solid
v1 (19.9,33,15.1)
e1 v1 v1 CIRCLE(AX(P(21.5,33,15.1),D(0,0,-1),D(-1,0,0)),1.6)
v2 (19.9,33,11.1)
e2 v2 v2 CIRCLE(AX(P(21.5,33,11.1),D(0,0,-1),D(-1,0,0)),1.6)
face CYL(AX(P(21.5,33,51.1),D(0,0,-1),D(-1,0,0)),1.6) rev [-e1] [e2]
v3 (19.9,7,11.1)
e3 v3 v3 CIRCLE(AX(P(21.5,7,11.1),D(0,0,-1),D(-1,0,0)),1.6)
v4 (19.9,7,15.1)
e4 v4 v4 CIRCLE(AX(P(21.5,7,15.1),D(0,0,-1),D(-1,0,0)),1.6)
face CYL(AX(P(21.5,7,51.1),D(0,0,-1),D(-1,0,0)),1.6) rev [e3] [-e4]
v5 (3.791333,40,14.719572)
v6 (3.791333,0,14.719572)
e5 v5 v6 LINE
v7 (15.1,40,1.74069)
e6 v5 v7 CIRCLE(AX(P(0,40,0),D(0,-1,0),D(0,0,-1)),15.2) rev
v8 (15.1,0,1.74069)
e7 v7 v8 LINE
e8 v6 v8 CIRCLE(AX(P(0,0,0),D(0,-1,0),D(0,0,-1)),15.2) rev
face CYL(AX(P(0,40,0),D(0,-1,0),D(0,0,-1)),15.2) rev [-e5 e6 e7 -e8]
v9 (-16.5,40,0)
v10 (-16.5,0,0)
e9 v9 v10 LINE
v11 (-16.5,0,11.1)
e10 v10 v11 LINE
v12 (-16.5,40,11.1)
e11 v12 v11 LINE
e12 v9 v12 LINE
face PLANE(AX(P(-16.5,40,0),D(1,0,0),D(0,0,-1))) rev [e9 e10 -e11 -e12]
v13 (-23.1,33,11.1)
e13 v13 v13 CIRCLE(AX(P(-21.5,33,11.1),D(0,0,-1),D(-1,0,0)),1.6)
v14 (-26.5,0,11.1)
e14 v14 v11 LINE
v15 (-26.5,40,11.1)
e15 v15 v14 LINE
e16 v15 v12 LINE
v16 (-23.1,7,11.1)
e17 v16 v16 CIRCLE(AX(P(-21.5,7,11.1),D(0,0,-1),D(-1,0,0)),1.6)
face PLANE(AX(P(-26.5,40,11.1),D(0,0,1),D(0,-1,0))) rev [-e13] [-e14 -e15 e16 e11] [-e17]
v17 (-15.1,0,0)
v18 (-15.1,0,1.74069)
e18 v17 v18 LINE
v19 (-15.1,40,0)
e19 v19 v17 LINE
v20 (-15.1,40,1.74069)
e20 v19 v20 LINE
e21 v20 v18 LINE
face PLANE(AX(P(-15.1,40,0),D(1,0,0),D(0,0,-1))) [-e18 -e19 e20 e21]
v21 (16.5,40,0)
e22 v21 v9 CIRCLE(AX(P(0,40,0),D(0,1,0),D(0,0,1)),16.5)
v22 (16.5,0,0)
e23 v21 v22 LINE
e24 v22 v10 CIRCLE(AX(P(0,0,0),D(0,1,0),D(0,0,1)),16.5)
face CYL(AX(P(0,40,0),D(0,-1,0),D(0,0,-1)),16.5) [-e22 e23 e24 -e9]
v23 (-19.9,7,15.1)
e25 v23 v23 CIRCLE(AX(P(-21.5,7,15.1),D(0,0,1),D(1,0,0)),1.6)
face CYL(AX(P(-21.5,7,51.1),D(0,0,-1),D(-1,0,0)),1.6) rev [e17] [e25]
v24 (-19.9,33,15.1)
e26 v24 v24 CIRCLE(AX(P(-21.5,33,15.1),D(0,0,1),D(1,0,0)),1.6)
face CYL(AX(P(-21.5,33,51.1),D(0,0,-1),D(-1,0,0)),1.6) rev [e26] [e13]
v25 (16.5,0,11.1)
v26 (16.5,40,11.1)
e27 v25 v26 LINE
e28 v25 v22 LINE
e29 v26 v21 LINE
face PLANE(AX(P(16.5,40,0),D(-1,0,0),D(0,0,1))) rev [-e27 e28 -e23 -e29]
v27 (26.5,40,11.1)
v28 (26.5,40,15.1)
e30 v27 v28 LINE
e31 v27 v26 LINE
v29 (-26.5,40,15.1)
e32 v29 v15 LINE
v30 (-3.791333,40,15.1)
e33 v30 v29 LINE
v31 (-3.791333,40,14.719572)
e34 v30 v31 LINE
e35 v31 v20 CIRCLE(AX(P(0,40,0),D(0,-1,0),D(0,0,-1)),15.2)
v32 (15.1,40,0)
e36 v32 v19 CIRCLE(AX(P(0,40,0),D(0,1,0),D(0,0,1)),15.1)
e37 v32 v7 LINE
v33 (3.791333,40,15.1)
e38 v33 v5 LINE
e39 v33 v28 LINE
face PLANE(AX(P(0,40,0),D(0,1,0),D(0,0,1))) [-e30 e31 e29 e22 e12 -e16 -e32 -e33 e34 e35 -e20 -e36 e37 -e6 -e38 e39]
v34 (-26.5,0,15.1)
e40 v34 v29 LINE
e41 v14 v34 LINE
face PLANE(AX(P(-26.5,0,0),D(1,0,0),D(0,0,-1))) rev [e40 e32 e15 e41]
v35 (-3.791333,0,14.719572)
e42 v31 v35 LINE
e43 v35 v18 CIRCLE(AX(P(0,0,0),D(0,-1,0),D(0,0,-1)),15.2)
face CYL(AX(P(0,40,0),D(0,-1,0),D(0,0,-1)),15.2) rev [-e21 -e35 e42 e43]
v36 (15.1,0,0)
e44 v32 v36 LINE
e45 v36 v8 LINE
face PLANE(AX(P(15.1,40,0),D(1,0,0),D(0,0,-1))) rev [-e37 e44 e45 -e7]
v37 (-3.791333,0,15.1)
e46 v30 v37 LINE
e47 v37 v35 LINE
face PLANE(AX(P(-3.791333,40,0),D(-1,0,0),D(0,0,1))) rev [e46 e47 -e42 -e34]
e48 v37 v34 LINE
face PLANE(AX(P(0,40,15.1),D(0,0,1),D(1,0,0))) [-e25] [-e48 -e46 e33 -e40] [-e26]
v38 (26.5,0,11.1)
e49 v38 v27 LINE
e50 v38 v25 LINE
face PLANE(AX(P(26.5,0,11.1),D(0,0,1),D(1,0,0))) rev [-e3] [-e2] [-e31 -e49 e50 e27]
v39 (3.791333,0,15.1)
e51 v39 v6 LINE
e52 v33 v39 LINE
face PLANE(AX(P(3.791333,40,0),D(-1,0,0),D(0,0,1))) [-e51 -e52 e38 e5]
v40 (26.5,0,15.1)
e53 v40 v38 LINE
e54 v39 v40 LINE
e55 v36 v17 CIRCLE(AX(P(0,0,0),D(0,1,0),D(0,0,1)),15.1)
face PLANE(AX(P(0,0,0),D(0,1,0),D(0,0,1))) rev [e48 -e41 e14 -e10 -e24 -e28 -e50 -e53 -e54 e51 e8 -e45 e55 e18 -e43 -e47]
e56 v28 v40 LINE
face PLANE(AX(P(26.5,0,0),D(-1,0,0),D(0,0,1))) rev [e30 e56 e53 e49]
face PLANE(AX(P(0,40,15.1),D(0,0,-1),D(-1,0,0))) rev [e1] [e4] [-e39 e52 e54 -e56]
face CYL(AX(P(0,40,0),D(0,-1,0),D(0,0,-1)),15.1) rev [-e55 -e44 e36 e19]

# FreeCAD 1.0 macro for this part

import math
import FreeCAD as App
import Part
import Sketcher
from FreeCAD import Vector
Q = App.Units.Quantity

doc = App.newDocument("Part")
body = doc.addObject("PartDesign::Body", "Body")

# Sketch on XZ plane
sketch1 = body.newObject("Sketcher::SketchObject", "Sketch")
sketch1.AttachmentSupport = (doc.getObject("XZ_Plane"), [""])
sketch1.MapMode = "FlatFace"
sketch1.addGeometry([
    Part.ArcOfCircle(Part.Circle(Vector(0, 0, 0), Vector(0, 0, 1), 16.5), math.radians(180), math.radians(360)),  # 0
    Part.LineSegment(Vector(-16.5, 0, 0), Vector(-16.5, 15.1, 0)),  # 1
    Part.LineSegment(Vector(-16.5, 15.1, 0), Vector(-15.1, 15.1, 0)),  # 2
    Part.LineSegment(Vector(-15.1, 15.1, 0), Vector(-15.1, 0, 0)),  # 3
    Part.ArcOfCircle(Part.Circle(Vector(0, 0, 0), Vector(0, 0, 1), 15.1), math.radians(180), math.radians(360)),  # 4
    Part.LineSegment(Vector(15.1, 0, 0), Vector(15.1, 15.1, 0)),  # 5
    Part.LineSegment(Vector(15.1, 15.1, 0), Vector(16.5, 15.1, 0)),  # 6
    Part.LineSegment(Vector(16.5, 15.1, 0), Vector(16.5, 0, 0)),  # 7
], False)
sketch1.addConstraint([
    Sketcher.Constraint("Tangent", 0, 1, 1, 1),
    Sketcher.Constraint("Coincident", 1, 2, 2, 1),
    Sketcher.Constraint("Coincident", 2, 2, 3, 1),
    Sketcher.Constraint("Tangent", 3, 2, 4, 1),
    Sketcher.Constraint("Tangent", 4, 2, 5, 1),
    Sketcher.Constraint("Coincident", 5, 2, 6, 1),
    Sketcher.Constraint("Coincident", 6, 2, 7, 1),
    Sketcher.Constraint("Tangent", 7, 2, 0, 2),
    Sketcher.Constraint("Vertical", 1),
    Sketcher.Constraint("Horizontal", 2),
    Sketcher.Constraint("Vertical", 3),
    Sketcher.Constraint("Vertical", 5),
    Sketcher.Constraint("Horizontal", 6),
    Sketcher.Constraint("Vertical", 7),
    Sketcher.Constraint("Coincident", 0, 3, -1, 1),
    Sketcher.Constraint("Coincident", 4, 3, -1, 1),
    Sketcher.Constraint("Horizontal", 2, 2, 5, 2),
    Sketcher.Constraint("Radius", 0, Q("16.5 mm")),
    Sketcher.Constraint("Radius", 4, Q("15.1 mm")),
    Sketcher.Constraint("DistanceY", 1, 1, 1, 2, Q("15.1 mm")),
])
pad1 = body.newObject("PartDesign::Pad", "Pad")
pad1.Profile = sketch1
pad1.Length = 40
pad1.Reversed = True

# Sketch on YZ plane
sketch2 = body.newObject("Sketcher::SketchObject", "Sketch001")
sketch2.AttachmentSupport = (doc.getObject("YZ_Plane"), [""])
sketch2.MapMode = "FlatFace"
sketch2.AttachmentOffset = App.Placement(Vector(0, 0, 16.5), App.Rotation())
sketch2.addGeometry([
    Part.LineSegment(Vector(40, 15.1, 0), Vector(0, 15.1, 0)),
    Part.LineSegment(Vector(0, 15.1, 0), Vector(0, 11.1, 0)),
    Part.LineSegment(Vector(0, 11.1, 0), Vector(40, 11.1, 0)),
    Part.LineSegment(Vector(40, 11.1, 0), Vector(40, 15.1, 0)),
], False)
sketch2.addConstraint([
    Sketcher.Constraint("Coincident", 0, 2, 1, 1),
    Sketcher.Constraint("Coincident", 1, 2, 2, 1),
    Sketcher.Constraint("Coincident", 2, 2, 3, 1),
    Sketcher.Constraint("Coincident", 3, 2, 0, 1),
    Sketcher.Constraint("Horizontal", 0),
    Sketcher.Constraint("Vertical", 1),
    Sketcher.Constraint("Horizontal", 2),
    Sketcher.Constraint("Vertical", 3),
    Sketcher.Constraint("PointOnObject", 0, 2, -2),
    Sketcher.Constraint("DistanceX", 0, 2, 0, 1, Q("40 mm")),
    Sketcher.Constraint("DistanceY", 1, 2, 1, 1, Q("4 mm")),
    Sketcher.Constraint("DistanceY", -1, 1, 0, 2, Q("15.1 mm")),
])
pad2 = body.newObject("PartDesign::Pad", "Pad001")
pad2.Profile = sketch2
pad2.Length = 10

# Sketch on YZ plane
sketch3 = body.newObject("Sketcher::SketchObject", "Sketch002")
sketch3.AttachmentSupport = (doc.getObject("YZ_Plane"), [""])
sketch3.MapMode = "FlatFace"
sketch3.AttachmentOffset = App.Placement(Vector(0, 0, -16.5), App.Rotation())
sketch3.addGeometry([
    Part.LineSegment(Vector(40, 11.1, 0), Vector(0, 11.1, 0)),
    Part.LineSegment(Vector(0, 11.1, 0), Vector(0, 15.1, 0)),
    Part.LineSegment(Vector(0, 15.1, 0), Vector(40, 15.1, 0)),
    Part.LineSegment(Vector(40, 15.1, 0), Vector(40, 11.1, 0)),
], False)
sketch3.addConstraint([
    Sketcher.Constraint("Coincident", 0, 2, 1, 1),
    Sketcher.Constraint("Coincident", 1, 2, 2, 1),
    Sketcher.Constraint("Coincident", 2, 2, 3, 1),
    Sketcher.Constraint("Coincident", 3, 2, 0, 1),
    Sketcher.Constraint("Horizontal", 0),
    Sketcher.Constraint("Vertical", 1),
    Sketcher.Constraint("Horizontal", 2),
    Sketcher.Constraint("Vertical", 3),
    Sketcher.Constraint("PointOnObject", 0, 2, -2),
    Sketcher.Constraint("DistanceX", 0, 2, 0, 1, Q("40 mm")),
    Sketcher.Constraint("DistanceY", 1, 1, 1, 2, Q("4 mm")),
    Sketcher.Constraint("DistanceY", -1, 1, 0, 2, Q("11.1 mm")),
])
pad3 = body.newObject("PartDesign::Pad", "Pad002")
pad3.Profile = sketch3
pad3.Length = 10
pad3.Reversed = True

# Sketch on XZ plane
sketch4 = body.newObject("Sketcher::SketchObject", "Sketch003")
sketch4.AttachmentSupport = (doc.getObject("XZ_Plane"), [""])
sketch4.MapMode = "FlatFace"
sketch4.addGeometry([
    Part.LineSegment(Vector(-3.791333, 15.1, 0), Vector(-15.1, 15.1, 0)),  # 0
    Part.LineSegment(Vector(-15.1, 15.1, 0), Vector(-15.1, 1.74069, 0)),  # 1
    Part.ArcOfCircle(Part.Circle(Vector(0, 0, 0), Vector(0, 0, 1), 15.2), math.radians(104.443772), math.radians(173.424115)),  # 2
    Part.LineSegment(Vector(-3.791333, 14.719572, 0), Vector(-3.791333, 15.1, 0)),  # 3
    Part.LineSegment(Vector(15.1, 15.1, 0), Vector(3.791333, 15.1, 0)),  # 4
    Part.LineSegment(Vector(3.791333, 15.1, 0), Vector(3.791333, 14.719572, 0)),  # 5
    Part.ArcOfCircle(Part.Circle(Vector(0, 0, 0), Vector(0, 0, 1), 15.2), math.radians(6.575885), math.radians(75.556228)),  # 6
    Part.LineSegment(Vector(15.1, 1.74069, 0), Vector(15.1, 15.1, 0)),  # 7
], False)
sketch4.addConstraint([
    Sketcher.Constraint("Coincident", 0, 2, 1, 1),
    Sketcher.Constraint("Coincident", 1, 2, 2, 2),
    Sketcher.Constraint("Coincident", 2, 1, 3, 1),
    Sketcher.Constraint("Coincident", 3, 2, 0, 1),
    Sketcher.Constraint("Coincident", 4, 2, 5, 1),
    Sketcher.Constraint("Coincident", 5, 2, 6, 2),
    Sketcher.Constraint("Coincident", 6, 1, 7, 1),
    Sketcher.Constraint("Coincident", 7, 2, 4, 1),
    Sketcher.Constraint("Horizontal", 0),
    Sketcher.Constraint("Vertical", 1),
    Sketcher.Constraint("Vertical", 3),
    Sketcher.Constraint("Horizontal", 4),
    Sketcher.Constraint("Vertical", 5),
    Sketcher.Constraint("Vertical", 7),
    Sketcher.Constraint("Coincident", 2, 3, -1, 1),
    Sketcher.Constraint("Coincident", 6, 3, -1, 1),
    Sketcher.Constraint("Equal", 2, 6),
    Sketcher.Constraint("Symmetric", 3, 2, 4, 2, -2),
    Sketcher.Constraint("Horizontal", 1, 2, 6, 1),
    Sketcher.Constraint("Radius", 2, Q("15.2 mm")),
    Sketcher.Constraint("DistanceX", 0, 2, -1, 1, Q("15.1 mm")),
    Sketcher.Constraint("DistanceY", -1, 1, 0, 2, Q("15.1 mm")),
    Sketcher.Constraint("DistanceY", 3, 1, 3, 2, Q("0.380428 mm")),
])
pad4 = body.newObject("PartDesign::Pad", "Pad003")
pad4.Profile = sketch4
pad4.Length = 40
pad4.Reversed = True

# Sketch on XY plane
sketch5 = body.newObject("Sketcher::SketchObject", "Sketch004")
sketch5.AttachmentSupport = (doc.getObject("XY_Plane"), [""])
sketch5.MapMode = "FlatFace"
sketch5.AttachmentOffset = App.Placement(Vector(0, 0, 11.1), App.Rotation())
sketch5.addGeometry([
    Part.ArcOfCircle(Part.Circle(Vector(21.5, 33, 0), Vector(0, 0, 1), 1.6), math.radians(90), math.radians(180)),  # 0
    Part.ArcOfCircle(Part.Circle(Vector(21.5, 33, 0), Vector(0, 0, 1), 1.6), math.radians(-90), math.radians(90)),  # 1
    Part.ArcOfCircle(Part.Circle(Vector(21.5, 33, 0), Vector(0, 0, 1), 1.6), math.radians(180), math.radians(270)),  # 2
    Part.ArcOfCircle(Part.Circle(Vector(21.5, 7, 0), Vector(0, 0, 1), 1.6), math.radians(90), math.radians(180)),  # 3
    Part.ArcOfCircle(Part.Circle(Vector(21.5, 7, 0), Vector(0, 0, 1), 1.6), math.radians(-90), math.radians(90)),  # 4
    Part.ArcOfCircle(Part.Circle(Vector(21.5, 7, 0), Vector(0, 0, 1), 1.6), math.radians(180), math.radians(270)),  # 5
    Part.ArcOfCircle(Part.Circle(Vector(-21.5, 7, 0), Vector(0, 0, 1), 1.6), math.radians(90), math.radians(180)),  # 6
    Part.ArcOfCircle(Part.Circle(Vector(-21.5, 7, 0), Vector(0, 0, 1), 1.6), math.radians(-90), math.radians(90)),  # 7
    Part.ArcOfCircle(Part.Circle(Vector(-21.5, 7, 0), Vector(0, 0, 1), 1.6), math.radians(180), math.radians(270)),  # 8
    Part.ArcOfCircle(Part.Circle(Vector(-21.5, 33, 0), Vector(0, 0, 1), 1.6), math.radians(90), math.radians(180)),  # 9
    Part.ArcOfCircle(Part.Circle(Vector(-21.5, 33, 0), Vector(0, 0, 1), 1.6), math.radians(-90), math.radians(90)),  # 10
    Part.ArcOfCircle(Part.Circle(Vector(-21.5, 33, 0), Vector(0, 0, 1), 1.6), math.radians(180), math.radians(270)),  # 11
], False)
sketch5.addConstraint([
    Sketcher.Constraint("Tangent", 0, 1, 1, 2),
    Sketcher.Constraint("Tangent", 1, 1, 2, 2),
    Sketcher.Constraint("Tangent", 2, 1, 0, 2),
    Sketcher.Constraint("Tangent", 3, 1, 4, 2),
    Sketcher.Constraint("Tangent", 4, 1, 5, 2),
    Sketcher.Constraint("Tangent", 5, 1, 3, 2),
    Sketcher.Constraint("Tangent", 6, 1, 7, 2),
    Sketcher.Constraint("Tangent", 7, 1, 8, 2),
    Sketcher.Constraint("Tangent", 8, 1, 6, 2),
    Sketcher.Constraint("Tangent", 9, 1, 10, 2),
    Sketcher.Constraint("Tangent", 10, 1, 11, 2),
    Sketcher.Constraint("Tangent", 11, 1, 9, 2),
    Sketcher.Constraint("Equal", 2, 3),
    Sketcher.Constraint("Equal", 5, 6),
    Sketcher.Constraint("Equal", 8, 9),
    Sketcher.Constraint("Symmetric", 3, 3, 6, 3, -2),
    Sketcher.Constraint("Symmetric", 0, 3, 9, 3, -2),
    Sketcher.Constraint("Horizontal", 11, 3, 2, 1),
    Sketcher.Constraint("Horizontal", 8, 3, 5, 1),
    Sketcher.Constraint("Horizontal", 5, 1, 8, 1),
    Sketcher.Constraint("Horizontal", 2, 1, 11, 1),
    Sketcher.Constraint("Vertical", 2, 3, 3, 3),
    Sketcher.Constraint("Vertical", 5, 3, 0, 1),
    Sketcher.Constraint("Vertical", 0, 1, 1, 1),
    Sketcher.Constraint("Vertical", 1, 1, 3, 1),
    Sketcher.Constraint("Vertical", 3, 1, 4, 1),
    Sketcher.Constraint("Vertical", 11, 3, 6, 1),
    Sketcher.Constraint("Vertical", 6, 1, 7, 1),
    Sketcher.Constraint("Vertical", 7, 1, 9, 1),
    Sketcher.Constraint("Vertical", 9, 1, 10, 1),
    Sketcher.Constraint("Radius", 0, Q("1.6 mm")),
    Sketcher.Constraint("DistanceY", -1, 1, 0, 3, Q("33 mm")),
    Sketcher.Constraint("DistanceY", -1, 1, 3, 3, Q("7 mm")),
    Sketcher.Constraint("DistanceX", 6, 3, 3, 3, Q("43 mm")),
])
pocket1 = body.newObject("PartDesign::Pocket", "Pocket")
pocket1.Profile = sketch5
pocket1.Length = 40
pocket1.Reversed = True

doc.recompute()
